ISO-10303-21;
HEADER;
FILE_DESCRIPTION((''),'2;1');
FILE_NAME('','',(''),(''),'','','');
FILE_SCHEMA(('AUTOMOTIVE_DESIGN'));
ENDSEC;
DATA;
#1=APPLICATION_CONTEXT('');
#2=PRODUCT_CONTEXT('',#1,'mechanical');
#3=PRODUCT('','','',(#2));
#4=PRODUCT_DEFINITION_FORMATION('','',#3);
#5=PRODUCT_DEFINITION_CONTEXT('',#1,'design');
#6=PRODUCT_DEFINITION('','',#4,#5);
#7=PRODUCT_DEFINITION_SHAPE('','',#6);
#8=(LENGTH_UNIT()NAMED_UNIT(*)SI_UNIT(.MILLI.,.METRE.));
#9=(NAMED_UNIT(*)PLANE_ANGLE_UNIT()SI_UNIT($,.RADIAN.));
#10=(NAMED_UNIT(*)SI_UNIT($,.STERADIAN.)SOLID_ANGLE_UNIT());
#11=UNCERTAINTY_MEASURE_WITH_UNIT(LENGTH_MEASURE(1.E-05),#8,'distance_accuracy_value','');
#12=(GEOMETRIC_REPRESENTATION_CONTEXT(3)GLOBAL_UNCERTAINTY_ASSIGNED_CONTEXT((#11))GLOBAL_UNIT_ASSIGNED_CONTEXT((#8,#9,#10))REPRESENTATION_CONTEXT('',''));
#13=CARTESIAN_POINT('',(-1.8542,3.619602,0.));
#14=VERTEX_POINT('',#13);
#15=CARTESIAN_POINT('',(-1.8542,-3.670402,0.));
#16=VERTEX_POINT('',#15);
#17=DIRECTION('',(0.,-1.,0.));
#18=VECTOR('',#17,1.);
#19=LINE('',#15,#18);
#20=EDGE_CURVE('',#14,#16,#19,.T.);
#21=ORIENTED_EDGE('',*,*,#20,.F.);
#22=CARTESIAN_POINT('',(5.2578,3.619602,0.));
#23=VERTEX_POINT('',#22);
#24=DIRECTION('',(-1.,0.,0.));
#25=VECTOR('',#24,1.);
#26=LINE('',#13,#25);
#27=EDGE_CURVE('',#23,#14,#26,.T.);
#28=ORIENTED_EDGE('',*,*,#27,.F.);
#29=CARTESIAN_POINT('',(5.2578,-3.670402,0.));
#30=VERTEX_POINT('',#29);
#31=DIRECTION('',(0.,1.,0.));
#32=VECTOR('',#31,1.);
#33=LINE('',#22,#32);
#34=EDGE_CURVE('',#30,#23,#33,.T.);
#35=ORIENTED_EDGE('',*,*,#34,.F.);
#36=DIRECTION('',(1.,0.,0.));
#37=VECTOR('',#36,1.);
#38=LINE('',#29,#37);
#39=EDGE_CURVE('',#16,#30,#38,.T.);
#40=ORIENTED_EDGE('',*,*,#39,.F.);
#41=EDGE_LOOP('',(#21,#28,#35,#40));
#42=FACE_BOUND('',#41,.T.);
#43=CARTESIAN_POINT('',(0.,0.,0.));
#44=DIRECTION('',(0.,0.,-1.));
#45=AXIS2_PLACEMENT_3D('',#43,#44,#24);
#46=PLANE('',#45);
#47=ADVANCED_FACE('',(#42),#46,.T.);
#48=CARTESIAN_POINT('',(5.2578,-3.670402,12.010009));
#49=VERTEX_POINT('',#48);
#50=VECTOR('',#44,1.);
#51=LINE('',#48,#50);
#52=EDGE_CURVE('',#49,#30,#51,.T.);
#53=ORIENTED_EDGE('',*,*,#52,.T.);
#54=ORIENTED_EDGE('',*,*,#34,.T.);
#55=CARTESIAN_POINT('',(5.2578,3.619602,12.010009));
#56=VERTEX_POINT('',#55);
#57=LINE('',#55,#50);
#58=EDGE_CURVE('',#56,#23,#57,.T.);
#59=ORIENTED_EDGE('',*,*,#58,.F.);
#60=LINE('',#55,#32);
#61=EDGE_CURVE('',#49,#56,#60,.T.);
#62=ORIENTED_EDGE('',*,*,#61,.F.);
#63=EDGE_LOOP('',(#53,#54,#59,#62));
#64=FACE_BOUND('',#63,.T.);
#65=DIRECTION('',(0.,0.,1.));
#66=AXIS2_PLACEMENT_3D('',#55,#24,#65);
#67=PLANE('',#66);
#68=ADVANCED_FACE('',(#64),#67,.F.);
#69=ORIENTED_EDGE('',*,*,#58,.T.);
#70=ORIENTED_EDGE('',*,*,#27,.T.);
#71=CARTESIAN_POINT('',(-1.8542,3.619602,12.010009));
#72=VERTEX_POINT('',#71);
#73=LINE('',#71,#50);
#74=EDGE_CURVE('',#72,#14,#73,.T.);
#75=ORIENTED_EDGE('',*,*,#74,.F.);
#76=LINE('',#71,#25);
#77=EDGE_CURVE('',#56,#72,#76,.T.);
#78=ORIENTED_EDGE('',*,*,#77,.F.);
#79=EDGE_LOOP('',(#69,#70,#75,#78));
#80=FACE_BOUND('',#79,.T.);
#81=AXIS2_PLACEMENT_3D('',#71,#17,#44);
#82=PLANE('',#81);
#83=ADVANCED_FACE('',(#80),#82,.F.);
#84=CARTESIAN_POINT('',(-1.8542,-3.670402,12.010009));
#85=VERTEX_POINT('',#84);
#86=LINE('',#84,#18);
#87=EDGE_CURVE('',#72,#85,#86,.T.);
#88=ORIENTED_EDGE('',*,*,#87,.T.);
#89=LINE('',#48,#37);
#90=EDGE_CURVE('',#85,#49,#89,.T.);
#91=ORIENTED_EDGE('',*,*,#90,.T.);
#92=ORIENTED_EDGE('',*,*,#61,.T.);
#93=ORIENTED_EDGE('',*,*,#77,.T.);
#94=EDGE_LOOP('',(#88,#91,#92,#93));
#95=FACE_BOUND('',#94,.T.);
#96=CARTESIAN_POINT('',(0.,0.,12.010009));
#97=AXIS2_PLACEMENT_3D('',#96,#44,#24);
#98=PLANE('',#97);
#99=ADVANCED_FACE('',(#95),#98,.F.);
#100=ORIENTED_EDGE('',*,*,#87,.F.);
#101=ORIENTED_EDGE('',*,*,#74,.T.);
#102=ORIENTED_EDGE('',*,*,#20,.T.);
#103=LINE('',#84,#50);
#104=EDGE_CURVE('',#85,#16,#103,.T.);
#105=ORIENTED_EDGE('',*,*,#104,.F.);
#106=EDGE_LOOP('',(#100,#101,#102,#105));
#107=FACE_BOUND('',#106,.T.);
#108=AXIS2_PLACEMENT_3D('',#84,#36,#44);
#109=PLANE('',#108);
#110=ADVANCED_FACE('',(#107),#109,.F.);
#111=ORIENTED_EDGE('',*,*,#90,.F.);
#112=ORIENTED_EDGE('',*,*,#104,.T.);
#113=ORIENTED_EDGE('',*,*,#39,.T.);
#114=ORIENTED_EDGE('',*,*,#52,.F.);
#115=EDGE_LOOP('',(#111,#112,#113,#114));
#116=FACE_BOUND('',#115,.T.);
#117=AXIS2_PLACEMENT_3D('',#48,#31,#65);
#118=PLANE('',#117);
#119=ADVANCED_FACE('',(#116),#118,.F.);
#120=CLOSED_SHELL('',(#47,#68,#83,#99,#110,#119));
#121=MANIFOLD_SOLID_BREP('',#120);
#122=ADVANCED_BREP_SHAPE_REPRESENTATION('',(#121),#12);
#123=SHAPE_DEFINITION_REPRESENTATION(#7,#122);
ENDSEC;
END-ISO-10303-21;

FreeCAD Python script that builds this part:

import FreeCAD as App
import Part
import Sketcher

V = App.Vector
Q = App.Units.Quantity


def add_polygon(sketch, points):
    """Adds a closed chain of lines whose ends are joined by coincident constraints."""
    first, n = sketch.GeometryCount, len(points)
    for a, b in zip(points, points[1:] + points[:1]):
        sketch.addGeometry(Part.LineSegment(App.Vector(*a, 0), App.Vector(*b, 0)), False)
    for i in range(n):
        sketch.addConstraint(Sketcher.Constraint("Coincident", first + i, 2, first + (i + 1) % n, 1))

doc = App.newDocument("Part")
body = doc.addObject("PartDesign::Body", "Body")

# Sketch on XY plane
sketch1 = body.newObject("Sketcher::SketchObject", "Sketch")
sketch1.AttachmentSupport = (doc.getObject("XY_Plane"), [""])
sketch1.MapMode = "FlatFace"
add_polygon(sketch1, [(-2, 4), (-2, -4), (5, -4), (5, 4)])  # lines 0-3
sketch1.addConstraint([
    Sketcher.Constraint("Vertical", 0),
    Sketcher.Constraint("Horizontal", 1),
    Sketcher.Constraint("Vertical", 2),
    Sketcher.Constraint("Horizontal", 3),
    Sketcher.Constraint("DistanceX", 1, 1, 1, 2, Q("0.28 in")),
    Sketcher.Constraint("DistanceX", 0, 2, -1, 1, Q("0.073 in")),
    Sketcher.Constraint("DistanceY", 0, 2, -1, 1, Q("3.670402 mm")),
    Sketcher.Constraint("DistanceY", -1, 1, 2, 2, Q("3.619602 mm")),
])
pad1 = body.newObject("PartDesign::Pad", "Pad")
pad1.Profile = sketch1
pad1.Length = 12.010009

doc.recompute()
